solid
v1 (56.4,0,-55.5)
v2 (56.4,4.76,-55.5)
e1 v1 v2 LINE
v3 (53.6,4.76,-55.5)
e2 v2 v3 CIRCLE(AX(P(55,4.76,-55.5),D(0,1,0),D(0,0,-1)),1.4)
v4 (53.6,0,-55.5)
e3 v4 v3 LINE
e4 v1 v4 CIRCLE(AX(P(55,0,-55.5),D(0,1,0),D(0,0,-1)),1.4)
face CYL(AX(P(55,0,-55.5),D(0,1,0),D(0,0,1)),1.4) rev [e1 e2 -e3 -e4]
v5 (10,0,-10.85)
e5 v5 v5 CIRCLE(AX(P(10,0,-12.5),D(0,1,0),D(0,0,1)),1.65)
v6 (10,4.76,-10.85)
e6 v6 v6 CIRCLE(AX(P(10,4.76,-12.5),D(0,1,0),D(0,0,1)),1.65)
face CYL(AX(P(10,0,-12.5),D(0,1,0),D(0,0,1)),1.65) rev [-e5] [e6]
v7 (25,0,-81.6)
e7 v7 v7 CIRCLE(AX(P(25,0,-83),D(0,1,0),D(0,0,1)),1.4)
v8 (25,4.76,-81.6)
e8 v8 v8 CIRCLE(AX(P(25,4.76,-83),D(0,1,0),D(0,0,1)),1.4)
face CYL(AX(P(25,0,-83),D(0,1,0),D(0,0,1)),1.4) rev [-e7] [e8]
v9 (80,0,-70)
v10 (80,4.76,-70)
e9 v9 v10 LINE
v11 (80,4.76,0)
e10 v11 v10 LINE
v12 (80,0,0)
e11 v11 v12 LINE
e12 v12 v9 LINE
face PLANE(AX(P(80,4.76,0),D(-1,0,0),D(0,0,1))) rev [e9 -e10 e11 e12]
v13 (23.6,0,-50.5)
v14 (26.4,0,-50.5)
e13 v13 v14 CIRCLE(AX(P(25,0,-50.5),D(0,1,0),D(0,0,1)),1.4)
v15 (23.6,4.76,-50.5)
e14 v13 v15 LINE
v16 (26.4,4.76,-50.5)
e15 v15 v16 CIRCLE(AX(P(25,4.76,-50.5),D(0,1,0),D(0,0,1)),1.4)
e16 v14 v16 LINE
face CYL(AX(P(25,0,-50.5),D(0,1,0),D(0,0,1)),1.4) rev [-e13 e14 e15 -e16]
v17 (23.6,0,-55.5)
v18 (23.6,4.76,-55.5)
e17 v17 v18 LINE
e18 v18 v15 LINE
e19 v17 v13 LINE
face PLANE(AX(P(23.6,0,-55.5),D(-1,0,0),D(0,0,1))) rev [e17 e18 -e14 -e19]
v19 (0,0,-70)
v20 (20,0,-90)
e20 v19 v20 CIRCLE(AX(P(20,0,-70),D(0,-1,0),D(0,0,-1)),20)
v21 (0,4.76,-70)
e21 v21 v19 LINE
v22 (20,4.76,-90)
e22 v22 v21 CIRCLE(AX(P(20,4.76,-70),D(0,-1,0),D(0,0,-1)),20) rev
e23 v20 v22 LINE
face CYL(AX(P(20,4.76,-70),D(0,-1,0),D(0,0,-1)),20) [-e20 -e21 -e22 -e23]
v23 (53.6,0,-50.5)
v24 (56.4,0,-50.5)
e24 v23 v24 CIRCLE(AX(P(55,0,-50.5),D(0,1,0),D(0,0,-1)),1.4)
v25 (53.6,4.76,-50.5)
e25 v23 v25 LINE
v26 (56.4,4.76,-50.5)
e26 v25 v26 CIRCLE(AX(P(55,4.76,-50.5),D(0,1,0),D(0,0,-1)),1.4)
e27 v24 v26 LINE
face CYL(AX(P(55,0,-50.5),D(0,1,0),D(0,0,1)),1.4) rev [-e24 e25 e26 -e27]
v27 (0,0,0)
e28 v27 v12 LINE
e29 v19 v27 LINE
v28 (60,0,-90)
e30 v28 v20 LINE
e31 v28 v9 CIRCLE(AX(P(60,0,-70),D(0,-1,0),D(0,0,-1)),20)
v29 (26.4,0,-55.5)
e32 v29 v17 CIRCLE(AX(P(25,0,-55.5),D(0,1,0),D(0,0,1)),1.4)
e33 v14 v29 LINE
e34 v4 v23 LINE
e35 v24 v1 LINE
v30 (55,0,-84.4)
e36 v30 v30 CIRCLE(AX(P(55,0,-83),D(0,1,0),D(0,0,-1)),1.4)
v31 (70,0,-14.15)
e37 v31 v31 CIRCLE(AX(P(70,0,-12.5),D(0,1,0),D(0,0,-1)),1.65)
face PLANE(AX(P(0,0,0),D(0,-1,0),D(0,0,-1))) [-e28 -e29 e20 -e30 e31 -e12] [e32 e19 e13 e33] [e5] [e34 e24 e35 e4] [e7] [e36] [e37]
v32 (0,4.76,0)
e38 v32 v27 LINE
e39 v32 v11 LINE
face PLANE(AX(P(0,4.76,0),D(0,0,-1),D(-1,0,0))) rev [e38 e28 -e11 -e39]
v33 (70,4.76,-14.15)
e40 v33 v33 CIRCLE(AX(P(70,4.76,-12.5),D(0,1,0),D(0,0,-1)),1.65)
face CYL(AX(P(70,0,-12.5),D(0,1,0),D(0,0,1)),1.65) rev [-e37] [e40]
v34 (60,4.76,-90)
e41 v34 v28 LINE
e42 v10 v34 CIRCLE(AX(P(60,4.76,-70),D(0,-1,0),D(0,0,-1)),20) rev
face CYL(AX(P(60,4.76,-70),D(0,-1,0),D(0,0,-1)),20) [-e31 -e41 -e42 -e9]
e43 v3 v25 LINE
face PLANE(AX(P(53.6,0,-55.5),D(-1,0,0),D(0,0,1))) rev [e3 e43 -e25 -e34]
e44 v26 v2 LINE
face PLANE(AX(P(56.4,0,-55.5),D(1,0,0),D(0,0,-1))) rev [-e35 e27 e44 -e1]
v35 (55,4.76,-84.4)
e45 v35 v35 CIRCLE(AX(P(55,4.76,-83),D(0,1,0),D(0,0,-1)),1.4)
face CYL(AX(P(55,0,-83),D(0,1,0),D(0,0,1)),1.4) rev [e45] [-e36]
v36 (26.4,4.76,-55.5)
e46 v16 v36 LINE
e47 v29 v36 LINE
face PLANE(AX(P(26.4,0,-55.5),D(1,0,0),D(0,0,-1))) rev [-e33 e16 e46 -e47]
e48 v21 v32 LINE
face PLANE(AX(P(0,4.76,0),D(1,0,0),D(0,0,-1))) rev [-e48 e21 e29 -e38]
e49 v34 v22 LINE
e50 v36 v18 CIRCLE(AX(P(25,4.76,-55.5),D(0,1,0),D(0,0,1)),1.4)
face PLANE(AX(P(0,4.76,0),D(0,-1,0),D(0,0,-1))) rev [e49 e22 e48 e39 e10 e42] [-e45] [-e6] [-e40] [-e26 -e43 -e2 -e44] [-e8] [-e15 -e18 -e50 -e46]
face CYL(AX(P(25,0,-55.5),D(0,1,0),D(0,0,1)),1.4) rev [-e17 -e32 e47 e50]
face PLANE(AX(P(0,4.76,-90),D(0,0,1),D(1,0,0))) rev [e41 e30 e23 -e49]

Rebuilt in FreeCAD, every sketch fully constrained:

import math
import FreeCAD as App
import Part
import Sketcher

V = App.Vector


def edges_at(feature, points):
    """Names of the edges that pass closest to the given points."""
    edges = feature.Shape.Edges
    near = lambda p: min(range(len(edges)), key=lambda i: edges[i].distToShape(Part.Vertex(*p))[0])
    return sorted({f"Edge{near(p) + 1}" for p in points})

doc = App.newDocument("Part")
params = doc.addObject("Spreadsheet::Sheet", "Params")
for row, (alias, value) in enumerate([
    ("sketch1_width", "80 mm"),
    ("sketch1_height", "90 mm"),
    ("pad1_length", "4.76 mm"),
    ("sketch2_diameter", "3.3 mm"),
    ("sketch2_diameter2", "2.8 mm"),
    ("sketch2_height", "5 mm"),
    ("fillet_radius", "20 mm"),
], start=1):
    params.set(f"A{row}", alias)
    params.set(f"B{row}", "=" + value)
    params.setAlias(f"B{row}", alias)

body = doc.addObject("PartDesign::Body", "Body")

# Sketch on XZ plane
sketch1 = doc.addObject("Sketcher::SketchObject", "Sketch")
body.addObject(sketch1)
sketch1.AttachmentSupport = (doc.XZ_Plane, [""])
sketch1.MapMode = "FlatFace"
sketch1.addGeometry([
    Part.LineSegment(V(0, -90, 0), V(0, 0, 0)),
    Part.LineSegment(V(0, 0, 0), V(80, 0, 0)),
    Part.LineSegment(V(80, 0, 0), V(80, -90, 0)),
    Part.LineSegment(V(80, -90, 0), V(0, -90, 0)),
], False)
sketch1.addConstraint([
    Sketcher.Constraint("Coincident", 0, 2, 1, 1),
    Sketcher.Constraint("Coincident", 1, 2, 2, 1),
    Sketcher.Constraint("Coincident", 2, 2, 3, 1),
    Sketcher.Constraint("Coincident", 3, 2, 0, 1),
    Sketcher.Constraint("Vertical", 0),
    Sketcher.Constraint("Horizontal", 1),
    Sketcher.Constraint("Vertical", 2),
    Sketcher.Constraint("Horizontal", 3),
    Sketcher.Constraint("Coincident", 0, 2, -1, 1),
    Sketcher.Constraint("DistanceX", 1, 1, 1, 2, 80.0),
    Sketcher.Constraint("DistanceY", 0, 1, 0, 2, 90.0),
])
sketch1.setExpression("Constraints[9]", "Params.sketch1_width")
sketch1.setExpression("Constraints[10]", "Params.sketch1_height")
pad1 = doc.addObject("PartDesign::Pad", "Pad")
body.addObject(pad1)
pad1.Profile = sketch1
pad1.setExpression("Length", "Params.pad1_length")
pad1.Reversed = True

# Sketch on XZ plane
sketch2 = doc.addObject("Sketcher::SketchObject", "Sketch001")
body.addObject(sketch2)
sketch2.AttachmentSupport = (doc.XZ_Plane, [""])
sketch2.MapMode = "FlatFace"
sketch2.AttachmentOffset = App.Placement(V(0, 0, -4.76), App.Rotation())
sketch2.addGeometry([
    Part.Circle(V(10, -12.5, 0), V(0, 0, 1), 1.6),  # 0
    Part.Circle(V(70, -12.5, 0), V(0, 0, 1), 1.6),  # 1
    Part.Circle(V(25, -83, 0), V(0, 0, 1), 1.4),  # 2
    Part.Circle(V(55, -83, 0), V(0, 0, 1), 1.4),  # 3
    Part.LineSegment(V(26.4, -50.5, 0), V(26.4, -55.5, 0)),  # 4
    Part.ArcOfCircle(Part.Circle(V(25, -55.5, 0), V(0, 0, 1), 1.4), math.radians(180), math.radians(360)),  # 5
    Part.LineSegment(V(23.6, -55.5, 0), V(23.6, -50.5, 0)),  # 6
    Part.ArcOfCircle(Part.Circle(V(25, -50.5, 0), V(0, 0, 1), 1.4), math.radians(0), math.radians(180)),  # 7
    Part.LineSegment(V(53.6, -55.5, 0), V(53.6, -50.5, 0)),  # 8
    Part.ArcOfCircle(Part.Circle(V(55, -50.5, 0), V(0, 0, 1), 1.4), math.radians(0), math.radians(180)),  # 9
    Part.LineSegment(V(56.4, -50.5, 0), V(56.4, -55.5, 0)),  # 10
    Part.ArcOfCircle(Part.Circle(V(55, -55.5, 0), V(0, 0, 1), 1.4), math.radians(180), math.radians(360)),  # 11
], False)
sketch2.addConstraint([
    Sketcher.Constraint("Tangent", 4, 2, 5, 2),
    Sketcher.Constraint("Tangent", 5, 1, 6, 1),
    Sketcher.Constraint("Tangent", 6, 2, 7, 2),
    Sketcher.Constraint("Tangent", 7, 1, 4, 1),
    Sketcher.Constraint("Tangent", 8, 2, 9, 2),
    Sketcher.Constraint("Tangent", 9, 1, 10, 1),
    Sketcher.Constraint("Tangent", 10, 2, 11, 2),
    Sketcher.Constraint("Tangent", 11, 1, 8, 1),
    Sketcher.Constraint("Vertical", 4),
    Sketcher.Constraint("Vertical", 6),
    Sketcher.Constraint("Vertical", 8),
    Sketcher.Constraint("Vertical", 10),
    Sketcher.Constraint("Equal", 0, 1),
    Sketcher.Constraint("Equal", 2, 3),
    Sketcher.Constraint("Equal", 3, 5),
    Sketcher.Constraint("Equal", 7, 9),
    Sketcher.Constraint("Horizontal", 0, 3, 1, 3),
    Sketcher.Constraint("Horizontal", 2, 3, 3, 3),
    Sketcher.Constraint("Horizontal", 7, 3, 9, 3),
    Sketcher.Constraint("Horizontal", 5, 3, 11, 3),
    Sketcher.Constraint("Vertical", 2, 3, 5, 3),
    Sketcher.Constraint("Vertical", 3, 3, 9, 3),
    Sketcher.Constraint("Diameter", 0, 3.3),
    Sketcher.Constraint("Diameter", 2, 2.8),
    Sketcher.Constraint("DistanceY", 4, 2, 4, 1, 5.0),
    Sketcher.Constraint("DistanceX", -1, 1, 0, 3, 10.0),
    Sketcher.Constraint("DistanceX", -1, 1, 1, 3, 70.0),
    Sketcher.Constraint("DistanceX", -1, 1, 2, 3, 25.0),
    Sketcher.Constraint("DistanceY", 2, 3, -1, 1, 83.0),
    Sketcher.Constraint("DistanceX", -1, 1, 3, 3, 55.0),
    Sketcher.Constraint("DistanceY", 5, 3, 0, 3, 43.0),
    Sketcher.Constraint("DistanceY", 0, 3, -1, 1, 12.5),
])
sketch2.setExpression("Constraints[22]", "Params.sketch2_diameter")
sketch2.setExpression("Constraints[23]", "Params.sketch2_diameter2")
sketch2.setExpression("Constraints[24]", "Params.sketch2_height")
pocket1 = doc.addObject("PartDesign::Pocket", "Pocket")
body.addObject(pocket1)
pocket1.Profile = sketch2
pocket1.Type = "ThroughAll"
pocket1.Reversed = True
doc.recompute()

fillet = doc.addObject("PartDesign::Fillet", "Fillet")
body.addObject(fillet)
fillet.Base = (pocket1, edges_at(pocket1, [(0, 2.38, -90), (80, 2.38, -90)]))
fillet.setExpression("Radius", "Params.fillet_radius")

doc.recompute()
